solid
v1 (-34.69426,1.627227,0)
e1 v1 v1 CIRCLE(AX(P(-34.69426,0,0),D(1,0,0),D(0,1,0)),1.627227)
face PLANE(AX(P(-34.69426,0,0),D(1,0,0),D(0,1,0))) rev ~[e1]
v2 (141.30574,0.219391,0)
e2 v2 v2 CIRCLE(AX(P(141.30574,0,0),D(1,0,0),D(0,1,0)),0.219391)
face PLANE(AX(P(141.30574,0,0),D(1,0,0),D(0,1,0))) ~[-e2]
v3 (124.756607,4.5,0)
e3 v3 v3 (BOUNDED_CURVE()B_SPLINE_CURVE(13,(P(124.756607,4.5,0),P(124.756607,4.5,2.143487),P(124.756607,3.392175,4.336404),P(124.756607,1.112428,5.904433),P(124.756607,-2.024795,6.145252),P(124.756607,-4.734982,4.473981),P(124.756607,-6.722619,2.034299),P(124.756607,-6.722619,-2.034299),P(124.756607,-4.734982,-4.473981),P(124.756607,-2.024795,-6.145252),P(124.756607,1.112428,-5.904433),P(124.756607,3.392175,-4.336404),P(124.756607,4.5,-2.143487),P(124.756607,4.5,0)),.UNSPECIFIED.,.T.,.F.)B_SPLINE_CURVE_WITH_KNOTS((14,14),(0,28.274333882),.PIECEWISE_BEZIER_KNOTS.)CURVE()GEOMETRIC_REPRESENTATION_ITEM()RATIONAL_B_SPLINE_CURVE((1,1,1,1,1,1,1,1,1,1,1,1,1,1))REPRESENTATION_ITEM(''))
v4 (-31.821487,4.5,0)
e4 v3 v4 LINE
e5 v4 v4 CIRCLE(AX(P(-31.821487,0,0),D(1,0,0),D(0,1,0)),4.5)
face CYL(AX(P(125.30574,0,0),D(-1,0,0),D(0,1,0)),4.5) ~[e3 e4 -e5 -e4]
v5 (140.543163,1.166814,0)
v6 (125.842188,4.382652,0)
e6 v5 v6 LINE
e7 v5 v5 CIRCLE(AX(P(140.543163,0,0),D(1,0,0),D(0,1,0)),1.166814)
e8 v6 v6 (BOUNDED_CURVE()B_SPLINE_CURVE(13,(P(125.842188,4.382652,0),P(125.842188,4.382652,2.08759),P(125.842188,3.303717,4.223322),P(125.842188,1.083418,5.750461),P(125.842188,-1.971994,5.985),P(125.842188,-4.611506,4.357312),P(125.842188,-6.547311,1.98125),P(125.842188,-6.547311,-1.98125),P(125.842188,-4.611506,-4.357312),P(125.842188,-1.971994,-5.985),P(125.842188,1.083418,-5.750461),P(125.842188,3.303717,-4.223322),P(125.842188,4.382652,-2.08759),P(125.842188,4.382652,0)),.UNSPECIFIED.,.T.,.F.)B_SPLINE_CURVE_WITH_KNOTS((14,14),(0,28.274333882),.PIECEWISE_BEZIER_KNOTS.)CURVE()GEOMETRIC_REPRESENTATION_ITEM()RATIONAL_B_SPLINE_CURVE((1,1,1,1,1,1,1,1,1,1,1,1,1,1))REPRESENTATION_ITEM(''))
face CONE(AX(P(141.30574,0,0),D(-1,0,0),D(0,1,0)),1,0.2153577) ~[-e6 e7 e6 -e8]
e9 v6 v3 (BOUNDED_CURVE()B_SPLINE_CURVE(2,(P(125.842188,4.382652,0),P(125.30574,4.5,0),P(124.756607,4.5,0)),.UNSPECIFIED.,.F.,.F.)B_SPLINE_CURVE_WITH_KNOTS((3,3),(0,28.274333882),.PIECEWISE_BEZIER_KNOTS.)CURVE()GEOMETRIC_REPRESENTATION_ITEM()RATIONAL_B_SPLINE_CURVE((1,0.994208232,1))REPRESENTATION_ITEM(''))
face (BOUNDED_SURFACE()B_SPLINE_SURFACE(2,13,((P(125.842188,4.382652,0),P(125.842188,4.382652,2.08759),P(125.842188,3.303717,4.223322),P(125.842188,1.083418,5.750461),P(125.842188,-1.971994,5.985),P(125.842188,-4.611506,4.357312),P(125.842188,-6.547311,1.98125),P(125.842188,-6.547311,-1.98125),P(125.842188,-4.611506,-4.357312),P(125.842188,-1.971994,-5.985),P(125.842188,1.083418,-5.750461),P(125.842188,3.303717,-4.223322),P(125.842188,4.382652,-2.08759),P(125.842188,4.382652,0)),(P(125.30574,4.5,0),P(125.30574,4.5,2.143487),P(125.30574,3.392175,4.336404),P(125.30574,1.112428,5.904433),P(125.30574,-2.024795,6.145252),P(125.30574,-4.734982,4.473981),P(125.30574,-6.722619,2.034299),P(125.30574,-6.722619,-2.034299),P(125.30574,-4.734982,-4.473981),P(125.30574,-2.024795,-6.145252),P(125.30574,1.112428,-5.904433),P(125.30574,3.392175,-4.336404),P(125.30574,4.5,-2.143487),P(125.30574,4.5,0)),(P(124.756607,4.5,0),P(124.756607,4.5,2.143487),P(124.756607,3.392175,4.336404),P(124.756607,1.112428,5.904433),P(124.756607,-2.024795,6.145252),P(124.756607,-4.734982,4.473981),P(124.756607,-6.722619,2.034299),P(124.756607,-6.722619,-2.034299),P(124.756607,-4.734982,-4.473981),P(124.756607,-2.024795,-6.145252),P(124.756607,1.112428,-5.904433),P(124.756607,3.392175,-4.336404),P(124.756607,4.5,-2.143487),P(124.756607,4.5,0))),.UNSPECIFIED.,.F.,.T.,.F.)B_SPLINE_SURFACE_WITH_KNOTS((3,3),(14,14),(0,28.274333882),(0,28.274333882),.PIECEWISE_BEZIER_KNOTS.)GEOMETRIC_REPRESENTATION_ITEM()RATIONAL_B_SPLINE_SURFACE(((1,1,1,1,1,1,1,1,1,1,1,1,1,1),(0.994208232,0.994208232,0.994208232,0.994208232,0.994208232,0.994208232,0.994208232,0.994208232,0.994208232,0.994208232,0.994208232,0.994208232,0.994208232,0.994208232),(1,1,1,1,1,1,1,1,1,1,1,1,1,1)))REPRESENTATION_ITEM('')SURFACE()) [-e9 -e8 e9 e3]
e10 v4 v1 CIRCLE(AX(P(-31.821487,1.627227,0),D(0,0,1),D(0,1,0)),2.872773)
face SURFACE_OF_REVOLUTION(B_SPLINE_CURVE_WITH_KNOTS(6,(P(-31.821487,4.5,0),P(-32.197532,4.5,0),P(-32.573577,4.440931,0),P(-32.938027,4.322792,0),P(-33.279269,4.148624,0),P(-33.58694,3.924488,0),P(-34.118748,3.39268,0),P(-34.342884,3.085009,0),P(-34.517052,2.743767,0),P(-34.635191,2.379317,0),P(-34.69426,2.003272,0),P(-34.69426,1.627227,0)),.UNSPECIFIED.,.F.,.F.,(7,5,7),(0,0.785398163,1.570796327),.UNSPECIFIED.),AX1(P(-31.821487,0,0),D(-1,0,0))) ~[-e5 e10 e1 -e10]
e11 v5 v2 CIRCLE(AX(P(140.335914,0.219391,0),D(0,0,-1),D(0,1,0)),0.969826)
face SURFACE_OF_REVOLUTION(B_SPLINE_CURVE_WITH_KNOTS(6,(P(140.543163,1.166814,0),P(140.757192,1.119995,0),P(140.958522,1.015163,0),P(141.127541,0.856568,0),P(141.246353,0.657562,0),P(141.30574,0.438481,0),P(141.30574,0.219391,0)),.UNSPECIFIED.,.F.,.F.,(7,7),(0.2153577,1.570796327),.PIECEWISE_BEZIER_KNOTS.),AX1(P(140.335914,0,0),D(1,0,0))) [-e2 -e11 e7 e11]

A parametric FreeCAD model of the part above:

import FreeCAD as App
import Part
import Sketcher
from FreeCAD import Vector
Q = App.Units.Quantity


def edges_at(feature, points):
    """Names of the edges that pass closest to the given points."""
    edges = feature.Shape.Edges
    near = lambda p: min(range(len(edges)), key=lambda i: edges[i].distToShape(Part.Vertex(*p))[0])
    return sorted({f"Edge{near(p) + 1}" for p in points})


def add_polygon(sketch, points):
    """Adds a closed chain of lines whose ends are joined by coincident constraints."""
    first, n = sketch.GeometryCount, len(points)
    for a, b in zip(points, points[1:] + points[:1]):
        sketch.addGeometry(Part.LineSegment(App.Vector(*a, 0), App.Vector(*b, 0)), False)
    for i in range(n):
        sketch.addConstraint(Sketcher.Constraint("Coincident", first + i, 2, first + (i + 1) % n, 1))

doc = App.newDocument("Part")
body = doc.addObject("PartDesign::Body", "Body")

sketch1 = body.newObject("Sketcher::SketchObject", "Sketch")
sketch1.AttachmentSupport = (doc.getObject("XY_Plane"), [""])
sketch1.MapMode = "FlatFace"
add_polygon(sketch1, [(125.3, 4.5), (-34.7, 4.5), (-34.7, 0), (141.3, 0), (141.3, 1)])
sketch1.addConstraint([
    Sketcher.Constraint("Horizontal", 0),
    Sketcher.Constraint("Vertical", 1),
    Sketcher.Constraint("Horizontal", 2),
    Sketcher.Constraint("Vertical", 3),
    Sketcher.Constraint("PointOnObject", 1, 2, -1),
    Sketcher.Constraint("DistanceX", 0, 2, 0, 1, Q("160 mm")),
    Sketcher.Constraint("DistanceX", 2, 1, 2, 2, Q("176 mm")),
    Sketcher.Constraint("DistanceY", 3, 1, 3, 2, Q("1 mm")),
    Sketcher.Constraint("DistanceY", 1, 2, 1, 1, Q("4.5 mm")),
    Sketcher.Constraint("DistanceX", 0, 2, -1, 1, Q("34.69426 mm")),
])
revolution = body.newObject("PartDesign::Revolution", "Revolution")
revolution.Profile = sketch1
revolution.ReferenceAxis = (sketch1, ["H_Axis"])
revolution.Angle = 360
doc.recompute()

fillet = body.newObject("PartDesign::Fillet", "Fillet")
fillet.Base = (revolution, edges_at(revolution, [(-34.694, -4.5, 0)]))
fillet.Radius = 2.872773
doc.recompute()

fillet2 = body.newObject("PartDesign::Fillet", "Fillet001")
fillet2.Base = (fillet, edges_at(fillet, [(141.306, -1, 0)]))
fillet2.Radius = 0.969826
doc.recompute()

fillet3 = body.newObject("PartDesign::Fillet", "Fillet002")
fillet3.Base = (fillet2, edges_at(fillet2, [(125.306, -4.5, 0)]))
fillet3.Radius = 5.08

doc.recompute()
